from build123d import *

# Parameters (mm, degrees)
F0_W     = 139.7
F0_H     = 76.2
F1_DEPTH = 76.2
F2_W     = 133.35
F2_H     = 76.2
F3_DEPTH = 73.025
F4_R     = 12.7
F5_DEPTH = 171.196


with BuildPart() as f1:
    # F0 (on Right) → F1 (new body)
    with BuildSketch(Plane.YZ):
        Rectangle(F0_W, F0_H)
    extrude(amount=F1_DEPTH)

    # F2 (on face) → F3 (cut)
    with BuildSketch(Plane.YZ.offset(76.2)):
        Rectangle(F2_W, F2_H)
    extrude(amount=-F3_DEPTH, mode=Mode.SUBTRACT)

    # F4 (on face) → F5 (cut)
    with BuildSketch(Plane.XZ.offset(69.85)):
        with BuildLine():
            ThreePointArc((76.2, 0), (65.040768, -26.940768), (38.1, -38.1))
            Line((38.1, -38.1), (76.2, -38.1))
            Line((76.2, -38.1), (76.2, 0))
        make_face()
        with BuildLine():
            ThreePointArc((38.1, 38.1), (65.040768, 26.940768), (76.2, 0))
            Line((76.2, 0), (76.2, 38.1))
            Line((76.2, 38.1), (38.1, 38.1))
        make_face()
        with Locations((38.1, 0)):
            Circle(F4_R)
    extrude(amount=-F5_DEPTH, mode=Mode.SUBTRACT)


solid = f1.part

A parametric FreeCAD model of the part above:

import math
import FreeCAD as App
import Part
import Sketcher
Q = App.Units.Quantity


def add_polygon(sketch, points):
    """Adds a closed chain of lines whose ends are joined by coincident constraints."""
    first, n = sketch.GeometryCount, len(points)
    for a, b in zip(points, points[1:] + points[:1]):
        sketch.addGeometry(Part.LineSegment(App.Vector(*a, 0), App.Vector(*b, 0)), False)
    for i in range(n):
        sketch.addConstraint(Sketcher.Constraint("Coincident", first + i, 2, first + (i + 1) % n, 1))

doc = App.newDocument("Part")
body = doc.addObject("PartDesign::Body", "Body")

# Sketch on YZ plane
sketch1 = body.newObject("Sketcher::SketchObject", "Sketch")
sketch1.AttachmentSupport = (doc.getObject("YZ_Plane"), [""])
sketch1.MapMode = "FlatFace"
add_polygon(sketch1, [(-70, 38), (-70, -38), (70, -38), (70, 38)])  # lines 0-3
sketch1.addConstraint([
    Sketcher.Constraint("Vertical", 0),
    Sketcher.Constraint("Horizontal", 1),
    Sketcher.Constraint("Vertical", 2),
    Sketcher.Constraint("Horizontal", 3),
    Sketcher.Constraint("Symmetric", 0, 2, 2, 2, -1, 1),
    Sketcher.Constraint("DistanceY", 0, 2, 0, 1, Q("3 in")),
    Sketcher.Constraint("DistanceX", 1, 1, 1, 2, Q("5.5 in")),
])
pad1 = body.newObject("PartDesign::Pad", "Pad")
pad1.Profile = sketch1
pad1.Length = Q("3 in")

# Sketch on YZ plane
sketch2 = body.newObject("Sketcher::SketchObject", "Sketch001")
sketch2.AttachmentSupport = (doc.getObject("YZ_Plane"), [""])
sketch2.MapMode = "FlatFace"
sketch2.AttachmentOffset = App.Placement(App.Vector(0, 0, 3 * 25.4), App.Rotation())
add_polygon(sketch2, [(-67, 38), (-67, -38), (67, -38), (67, 38)])  # lines 0-3
sketch2.addConstraint([
    Sketcher.Constraint("Vertical", 0),
    Sketcher.Constraint("Horizontal", 1),
    Sketcher.Constraint("Vertical", 2),
    Sketcher.Constraint("Horizontal", 3),
    Sketcher.Constraint("Symmetric", 0, 2, 2, 2, -1, 1),
    Sketcher.Constraint("DistanceY", 0, 2, 0, 1, Q("3 in")),
    Sketcher.Constraint("DistanceX", 1, 1, 1, 2, Q("5.25 in")),
])
pocket1 = body.newObject("PartDesign::Pocket", "Pocket")
pocket1.Profile = sketch2
pocket1.Length = Q("2.875 in")

# Sketch on XZ plane
sketch3 = body.newObject("Sketcher::SketchObject", "Sketch002")
sketch3.AttachmentSupport = (doc.getObject("XZ_Plane"), [""])
sketch3.MapMode = "FlatFace"
sketch3.AttachmentOffset = App.Placement(App.Vector(0, 0, 2.75 * 25.4), App.Rotation())
sketch3.addGeometry([
    Part.ArcOfCircle(Part.Circle(App.Vector(38, 0, 0), App.Vector(0, 0, 1), 38), math.radians(-90), math.radians(0)),  # 0
    Part.LineSegment(App.Vector(38, -38, 0), App.Vector(76, -38, 0)),  # 1
    Part.LineSegment(App.Vector(76, -38, 0), App.Vector(76, 0, 0)),  # 2
    Part.ArcOfCircle(Part.Circle(App.Vector(38, 0, 0), App.Vector(0, 0, 1), 38), math.radians(0), math.radians(90)),  # 3
    Part.LineSegment(App.Vector(76, 0, 0), App.Vector(76, 38, 0)),  # 4
    Part.LineSegment(App.Vector(76, 38, 0), App.Vector(38, 38, 0)),  # 5
    Part.Circle(App.Vector(38, 0, 0), App.Vector(0, 0, 1), 13),  # 6
], False)
sketch3.addConstraint([
    Sketcher.Constraint("Tangent", 0, 1, 1, 1),
    Sketcher.Constraint("Coincident", 1, 2, 2, 1),
    Sketcher.Constraint("Tangent", 2, 2, 0, 2),
    Sketcher.Constraint("Tangent", 3, 1, 4, 1),
    Sketcher.Constraint("Coincident", 4, 2, 5, 1),
    Sketcher.Constraint("Tangent", 5, 2, 3, 2),
    Sketcher.Constraint("Horizontal", 1),
    Sketcher.Constraint("Vertical", 2),
    Sketcher.Constraint("Vertical", 4),
    Sketcher.Constraint("Horizontal", 5),
    Sketcher.Constraint("Coincident", 3, 3, 0, 3),
    Sketcher.Constraint("Coincident", 6, 3, 0, 3),
    Sketcher.Constraint("Equal", 0, 3),
    Sketcher.Constraint("PointOnObject", 0, 3, -1),
    Sketcher.Constraint("Diameter", 6, Q("1 in")),
    Sketcher.Constraint("Radius", 0, Q("1.5 in")),
    Sketcher.Constraint("DistanceX", -1, 1, 1, 2, Q("3 in")),
])
pocket2 = body.newObject("PartDesign::Pocket", "Pocket001")
pocket2.Profile = sketch3
pocket2.Length = Q("6.74 in")

doc.recompute()
